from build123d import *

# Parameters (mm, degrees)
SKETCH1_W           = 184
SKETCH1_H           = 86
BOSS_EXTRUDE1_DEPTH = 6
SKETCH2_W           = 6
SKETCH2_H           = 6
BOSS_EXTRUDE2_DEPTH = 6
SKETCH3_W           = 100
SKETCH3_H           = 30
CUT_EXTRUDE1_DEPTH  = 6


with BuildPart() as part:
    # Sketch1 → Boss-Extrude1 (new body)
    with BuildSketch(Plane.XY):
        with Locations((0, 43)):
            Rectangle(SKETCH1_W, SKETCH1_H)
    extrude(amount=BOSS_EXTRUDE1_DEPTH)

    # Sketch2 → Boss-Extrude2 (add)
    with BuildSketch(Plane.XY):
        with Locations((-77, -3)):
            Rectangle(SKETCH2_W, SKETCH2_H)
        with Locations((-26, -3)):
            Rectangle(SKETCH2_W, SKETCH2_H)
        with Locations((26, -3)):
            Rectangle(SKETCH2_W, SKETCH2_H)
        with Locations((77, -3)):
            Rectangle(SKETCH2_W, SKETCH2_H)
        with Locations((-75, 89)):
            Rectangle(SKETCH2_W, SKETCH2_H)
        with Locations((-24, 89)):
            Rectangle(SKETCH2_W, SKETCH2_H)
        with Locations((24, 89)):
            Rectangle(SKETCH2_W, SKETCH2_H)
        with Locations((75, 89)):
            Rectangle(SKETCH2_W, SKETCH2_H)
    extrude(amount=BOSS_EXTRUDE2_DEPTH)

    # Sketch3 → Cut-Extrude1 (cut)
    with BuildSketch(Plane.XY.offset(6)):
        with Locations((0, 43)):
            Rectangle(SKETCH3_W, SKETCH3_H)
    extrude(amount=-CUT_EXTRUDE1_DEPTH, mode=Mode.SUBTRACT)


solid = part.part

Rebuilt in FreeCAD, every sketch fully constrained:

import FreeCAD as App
import Part
import Sketcher

V = App.Vector


def add_polygon(sketch, points):
    """Adds a closed chain of lines whose ends are joined by coincident constraints."""
    first, n = sketch.GeometryCount, len(points)
    for a, b in zip(points, points[1:] + points[:1]):
        sketch.addGeometry(Part.LineSegment(App.Vector(*a, 0), App.Vector(*b, 0)), False)
    for i in range(n):
        sketch.addConstraint(Sketcher.Constraint("Coincident", first + i, 2, first + (i + 1) % n, 1))

doc = App.newDocument("Part")
params = doc.addObject("Spreadsheet::Sheet", "Params")
for row, (alias, value) in enumerate([
    ("sketch1_width", "184 mm"),
    ("sketch1_height", "86 mm"),
    ("pad1_length", "6 mm"),
    ("sketch2_width", "6 mm"),
    ("pad2_length", "6 mm"),
    ("sketch3_width", "100 mm"),
    ("sketch3_height", "30 mm"),
    ("pocket1_length", "6 mm"),
], start=1):
    params.set(f"A{row}", alias)
    params.set(f"B{row}", "=" + value)
    params.setAlias(f"B{row}", alias)

body = doc.addObject("PartDesign::Body", "Body")

sketch1 = body.newObject("Sketcher::SketchObject", "Sketch")
sketch1.AttachmentSupport = (doc.getObject("XY_Plane"), [""])
sketch1.MapMode = "FlatFace"
add_polygon(sketch1, [(-92, 86), (-92, 0), (92, 0), (92, 86)])
sketch1.addConstraint([
    Sketcher.Constraint("Vertical", 0),
    Sketcher.Constraint("Horizontal", 1),
    Sketcher.Constraint("Vertical", 2),
    Sketcher.Constraint("Horizontal", 3),
    Sketcher.Constraint("Symmetric", 0, 2, 1, 2, -1, 1),
    Sketcher.Constraint("DistanceX", 1, 1, 1, 2, 184.0),
    Sketcher.Constraint("DistanceY", 0, 2, 0, 1, 86.0),
])
sketch1.setExpression("Constraints[9]", "Params.sketch1_width")
sketch1.setExpression("Constraints[10]", "Params.sketch1_height")
pad1 = body.newObject("PartDesign::Pad", "Pad")
pad1.Profile = sketch1
pad1.setExpression("Length", "Params.pad1_length")

sketch2 = body.newObject("Sketcher::SketchObject", "Sketch001")
sketch2.AttachmentSupport = (doc.getObject("XY_Plane"), [""])
sketch2.MapMode = "FlatFace"
add_polygon(sketch2, [(-80, 0), (-80, -6), (-74, -6), (-74, 0)])
add_polygon(sketch2, [(-29, 0), (-29, -6), (-23, -6), (-23, 0)])
add_polygon(sketch2, [(23, 0), (23, -6), (29, -6), (29, 0)])
add_polygon(sketch2, [(74, 0), (74, -6), (80, -6), (80, 0)])
add_polygon(sketch2, [(-78, 92), (-78, 86), (-72, 86), (-72, 92)])
add_polygon(sketch2, [(-27, 92), (-27, 86), (-21, 86), (-21, 92)])
add_polygon(sketch2, [(21, 92), (21, 86), (27, 86), (27, 92)])
add_polygon(sketch2, [(72, 92), (72, 86), (78, 86), (78, 92)])
sketch2.addConstraint([
    Sketcher.Constraint("Vertical", 0),
    Sketcher.Constraint("Horizontal", 1),
    Sketcher.Constraint("Vertical", 2),
    Sketcher.Constraint("Horizontal", 3),
    Sketcher.Constraint("Vertical", 4),
    Sketcher.Constraint("Horizontal", 5),
    Sketcher.Constraint("Vertical", 6),
    Sketcher.Constraint("Horizontal", 7),
    Sketcher.Constraint("Vertical", 8),
    Sketcher.Constraint("Horizontal", 9),
    Sketcher.Constraint("Vertical", 10),
    Sketcher.Constraint("Horizontal", 11),
    Sketcher.Constraint("Vertical", 12),
    Sketcher.Constraint("Horizontal", 13),
    Sketcher.Constraint("Vertical", 14),
    Sketcher.Constraint("Horizontal", 15),
    Sketcher.Constraint("Vertical", 16),
    Sketcher.Constraint("Horizontal", 17),
    Sketcher.Constraint("Vertical", 18),
    Sketcher.Constraint("Horizontal", 19),
    Sketcher.Constraint("Vertical", 20),
    Sketcher.Constraint("Horizontal", 21),
    Sketcher.Constraint("Vertical", 22),
    Sketcher.Constraint("Horizontal", 23),
    Sketcher.Constraint("Vertical", 24),
    Sketcher.Constraint("Horizontal", 25),
    Sketcher.Constraint("Vertical", 26),
    Sketcher.Constraint("Horizontal", 27),
    Sketcher.Constraint("Vertical", 28),
    Sketcher.Constraint("Horizontal", 29),
    Sketcher.Constraint("Vertical", 30),
    Sketcher.Constraint("Horizontal", 31),
    Sketcher.Constraint("Symmetric", 7, 2, 10, 2, -1, 1),
    Sketcher.Constraint("Symmetric", 3, 2, 14, 2, -1, 1),
    Sketcher.Constraint("Symmetric", 5, 2, 8, 2, -2),
    Sketcher.Constraint("Symmetric", 1, 2, 12, 2, -2),
    Sketcher.Constraint("Symmetric", 21, 2, 24, 2, -2),
    Sketcher.Constraint("Symmetric", 23, 2, 26, 2, -2),
    Sketcher.Constraint("Symmetric", 17, 2, 28, 2, -2),
    Sketcher.Constraint("Symmetric", 19, 2, 30, 2, -2),
    Sketcher.Constraint("PointOnObject", 2, 2, -1),
    Sketcher.Constraint("PointOnObject", 6, 2, -1),
    Sketcher.Constraint("Horizontal", 1, 2, 4, 2),
    Sketcher.Constraint("Horizontal", 17, 2, 20, 2),
    Sketcher.Constraint("Horizontal", 19, 2, 22, 2),
    Sketcher.Constraint("Equal", 3, 5),
    Sketcher.Constraint("Equal", 15, 17),
    Sketcher.Constraint("Equal", 19, 21),
    Sketcher.Constraint("Equal", 31, 0),
    Sketcher.Constraint("Equal", 14, 16),
    Sketcher.Constraint("DistanceX", 1, 1, 1, 2, 6.0),
    Sketcher.Constraint("DistanceX", 0, 2, -1, 1, 80.0),
    Sketcher.Constraint("DistanceX", 4, 2, -1, 1, 29.0),
    Sketcher.Constraint("DistanceX", 16, 2, -1, 1, 78.0),
    Sketcher.Constraint("DistanceY", -1, 1, 16, 2, 86.0),
    Sketcher.Constraint("DistanceX", 20, 2, -1, 1, 27.0),
])
sketch2.setExpression("Constraints[82]", "Params.sketch2_width")
pad2 = body.newObject("PartDesign::Pad", "Pad001")
pad2.Profile = sketch2
pad2.setExpression("Length", "Params.pad2_length")

sketch3 = body.newObject("Sketcher::SketchObject", "Sketch002")
sketch3.AttachmentSupport = (doc.getObject("XY_Plane"), [""])
sketch3.MapMode = "FlatFace"
sketch3.AttachmentOffset = App.Placement(V(0, 0, 6), App.Rotation())
add_polygon(sketch3, [(-50, 58), (-50, 28), (50, 28), (50, 58)])
sketch3.addConstraint([
    Sketcher.Constraint("Vertical", 0),
    Sketcher.Constraint("Horizontal", 1),
    Sketcher.Constraint("Vertical", 2),
    Sketcher.Constraint("Horizontal", 3),
    Sketcher.Constraint("DistanceX", 1, 1, 1, 2, 100.0),
    Sketcher.Constraint("DistanceY", 0, 2, 0, 1, 30.0),
    Sketcher.Constraint("DistanceX", 0, 2, -1, 1, 50.0),
    Sketcher.Constraint("DistanceY", -1, 1, 0, 2, 28.0),
])
sketch3.setExpression("Constraints[8]", "Params.sketch3_width")
sketch3.setExpression("Constraints[9]", "Params.sketch3_height")
pocket1 = body.newObject("PartDesign::Pocket", "Pocket")
pocket1.Profile = sketch3
pocket1.setExpression("Length", "Params.pocket1_length")

doc.recompute()
